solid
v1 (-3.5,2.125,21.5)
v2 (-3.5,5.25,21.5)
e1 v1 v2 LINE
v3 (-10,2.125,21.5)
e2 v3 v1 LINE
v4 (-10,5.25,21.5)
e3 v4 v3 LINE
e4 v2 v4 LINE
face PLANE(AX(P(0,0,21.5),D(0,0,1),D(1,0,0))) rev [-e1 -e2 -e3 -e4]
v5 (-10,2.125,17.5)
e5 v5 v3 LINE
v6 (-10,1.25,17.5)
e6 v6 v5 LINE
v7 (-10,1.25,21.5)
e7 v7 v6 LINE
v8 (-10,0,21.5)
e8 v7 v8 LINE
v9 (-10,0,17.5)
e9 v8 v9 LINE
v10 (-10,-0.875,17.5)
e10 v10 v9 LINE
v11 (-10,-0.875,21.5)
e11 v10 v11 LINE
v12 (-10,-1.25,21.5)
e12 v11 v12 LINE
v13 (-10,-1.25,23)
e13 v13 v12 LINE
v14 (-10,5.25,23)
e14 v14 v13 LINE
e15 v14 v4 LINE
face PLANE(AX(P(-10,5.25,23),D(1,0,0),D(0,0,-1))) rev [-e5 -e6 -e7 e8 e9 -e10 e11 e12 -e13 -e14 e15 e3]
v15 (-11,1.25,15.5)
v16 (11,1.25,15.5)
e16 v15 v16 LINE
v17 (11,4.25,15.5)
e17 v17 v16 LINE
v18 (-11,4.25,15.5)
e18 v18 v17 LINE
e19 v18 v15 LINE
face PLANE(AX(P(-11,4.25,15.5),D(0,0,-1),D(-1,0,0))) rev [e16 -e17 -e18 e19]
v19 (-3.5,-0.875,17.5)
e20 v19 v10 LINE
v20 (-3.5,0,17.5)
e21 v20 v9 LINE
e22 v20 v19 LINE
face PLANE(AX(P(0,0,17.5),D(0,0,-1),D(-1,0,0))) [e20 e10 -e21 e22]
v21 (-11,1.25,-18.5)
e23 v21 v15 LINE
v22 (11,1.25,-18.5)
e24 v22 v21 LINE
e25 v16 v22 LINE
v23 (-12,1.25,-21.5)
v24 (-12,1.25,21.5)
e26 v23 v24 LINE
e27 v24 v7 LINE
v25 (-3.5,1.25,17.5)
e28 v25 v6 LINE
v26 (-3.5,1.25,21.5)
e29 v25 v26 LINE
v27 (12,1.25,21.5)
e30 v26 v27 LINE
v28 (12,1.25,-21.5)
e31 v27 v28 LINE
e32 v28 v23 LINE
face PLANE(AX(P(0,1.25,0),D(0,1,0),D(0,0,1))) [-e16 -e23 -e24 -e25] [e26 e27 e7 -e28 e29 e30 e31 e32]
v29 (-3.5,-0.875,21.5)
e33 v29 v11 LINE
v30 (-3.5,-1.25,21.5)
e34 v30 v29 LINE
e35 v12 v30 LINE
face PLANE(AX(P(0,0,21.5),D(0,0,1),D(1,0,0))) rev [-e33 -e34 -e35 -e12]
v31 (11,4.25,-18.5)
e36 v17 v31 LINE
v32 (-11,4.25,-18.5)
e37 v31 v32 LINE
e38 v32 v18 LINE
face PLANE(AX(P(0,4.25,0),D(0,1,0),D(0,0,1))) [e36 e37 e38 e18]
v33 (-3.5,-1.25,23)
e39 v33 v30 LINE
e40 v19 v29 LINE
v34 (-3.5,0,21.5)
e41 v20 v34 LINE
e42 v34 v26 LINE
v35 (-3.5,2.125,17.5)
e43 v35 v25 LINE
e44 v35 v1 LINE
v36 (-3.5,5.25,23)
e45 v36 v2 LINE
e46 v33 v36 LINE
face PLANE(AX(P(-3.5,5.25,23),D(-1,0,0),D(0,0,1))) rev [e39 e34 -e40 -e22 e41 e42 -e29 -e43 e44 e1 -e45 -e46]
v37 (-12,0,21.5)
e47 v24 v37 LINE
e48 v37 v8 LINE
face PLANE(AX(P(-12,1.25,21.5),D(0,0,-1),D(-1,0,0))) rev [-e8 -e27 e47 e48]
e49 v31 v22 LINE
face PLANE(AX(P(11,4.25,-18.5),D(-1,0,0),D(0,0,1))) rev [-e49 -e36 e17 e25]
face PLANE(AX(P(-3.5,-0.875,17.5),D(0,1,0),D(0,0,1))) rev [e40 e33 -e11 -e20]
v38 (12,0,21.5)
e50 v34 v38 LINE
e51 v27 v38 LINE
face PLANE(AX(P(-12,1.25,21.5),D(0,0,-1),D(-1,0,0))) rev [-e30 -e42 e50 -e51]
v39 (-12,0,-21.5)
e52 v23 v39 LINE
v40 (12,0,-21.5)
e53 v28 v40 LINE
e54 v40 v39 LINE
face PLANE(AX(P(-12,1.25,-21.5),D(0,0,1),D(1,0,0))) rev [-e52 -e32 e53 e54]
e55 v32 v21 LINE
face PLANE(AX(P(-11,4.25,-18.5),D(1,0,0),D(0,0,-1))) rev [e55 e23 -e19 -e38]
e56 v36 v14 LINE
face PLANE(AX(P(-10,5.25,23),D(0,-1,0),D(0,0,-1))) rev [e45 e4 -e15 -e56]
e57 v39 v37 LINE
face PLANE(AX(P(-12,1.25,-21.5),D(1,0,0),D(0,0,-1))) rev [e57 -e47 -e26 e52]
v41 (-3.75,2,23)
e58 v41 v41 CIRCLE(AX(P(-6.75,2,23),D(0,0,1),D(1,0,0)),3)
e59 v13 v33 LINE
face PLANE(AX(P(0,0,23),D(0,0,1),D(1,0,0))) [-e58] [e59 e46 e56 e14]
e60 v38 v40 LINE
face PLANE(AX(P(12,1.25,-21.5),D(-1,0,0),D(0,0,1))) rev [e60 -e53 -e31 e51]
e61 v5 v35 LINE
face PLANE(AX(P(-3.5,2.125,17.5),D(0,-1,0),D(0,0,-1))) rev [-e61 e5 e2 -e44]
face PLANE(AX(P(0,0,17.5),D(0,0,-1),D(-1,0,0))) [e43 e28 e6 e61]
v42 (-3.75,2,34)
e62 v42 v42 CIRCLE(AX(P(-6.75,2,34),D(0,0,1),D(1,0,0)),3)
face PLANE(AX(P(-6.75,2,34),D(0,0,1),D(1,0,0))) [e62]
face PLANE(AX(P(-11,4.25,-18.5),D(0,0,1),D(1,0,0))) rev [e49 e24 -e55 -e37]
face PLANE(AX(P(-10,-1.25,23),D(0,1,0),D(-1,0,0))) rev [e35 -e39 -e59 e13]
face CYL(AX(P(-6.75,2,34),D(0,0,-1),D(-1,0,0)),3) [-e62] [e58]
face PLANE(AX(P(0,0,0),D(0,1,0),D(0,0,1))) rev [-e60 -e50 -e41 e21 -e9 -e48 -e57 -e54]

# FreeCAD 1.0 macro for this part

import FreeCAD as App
import Part
import Sketcher
from FreeCAD import Vector
Q = App.Units.Quantity


def add_polygon(sketch, points):
    """Adds a closed chain of lines whose ends are joined by coincident constraints."""
    first, n = sketch.GeometryCount, len(points)
    for a, b in zip(points, points[1:] + points[:1]):
        sketch.addGeometry(Part.LineSegment(App.Vector(*a, 0), App.Vector(*b, 0)), False)
    for i in range(n):
        sketch.addConstraint(Sketcher.Constraint("Coincident", first + i, 2, first + (i + 1) % n, 1))

doc = App.newDocument("Part")
body = doc.addObject("PartDesign::Body", "Body")

# Sketch on XZ plane
sketch1 = body.newObject("Sketcher::SketchObject", "Sketch")
sketch1.AttachmentSupport = (doc.getObject("XZ_Plane"), [""])
sketch1.MapMode = "FlatFace"
add_polygon(sketch1, [(-12, -21.5), (-12, 21.5), (12, 21.5), (12, -21.5)])  # lines 0-3
sketch1.addConstraint([
    Sketcher.Constraint("Vertical", 0),
    Sketcher.Constraint("Horizontal", 1),
    Sketcher.Constraint("Vertical", 2),
    Sketcher.Constraint("Horizontal", 3),
    Sketcher.Constraint("Symmetric", 0, 2, 2, 2, -1, 1),
    Sketcher.Constraint("DistanceX", 1, 1, 1, 2, Q("24 mm")),
    Sketcher.Constraint("DistanceY", 0, 1, 0, 2, Q("43 mm")),
])
pad1 = body.newObject("PartDesign::Pad", "Pad")
pad1.Profile = sketch1
pad1.Length = 1.25
pad1.Reversed = True

# Sketch on XZ plane
sketch2 = body.newObject("Sketcher::SketchObject", "Sketch001")
sketch2.AttachmentSupport = (doc.getObject("XZ_Plane"), [""])
sketch2.MapMode = "FlatFace"
sketch2.AttachmentOffset = App.Placement(Vector(0, 0, -1.25), App.Rotation())
add_polygon(sketch2, [(-11, -18.5), (-11, 15.5), (11, 15.5), (11, -18.5)])  # lines 0-3
sketch2.addConstraint([
    Sketcher.Constraint("Vertical", 0),
    Sketcher.Constraint("Horizontal", 1),
    Sketcher.Constraint("Vertical", 2),
    Sketcher.Constraint("Horizontal", 3),
    Sketcher.Constraint("DistanceX", 1, 1, 1, 2, Q("22 mm")),
    Sketcher.Constraint("DistanceY", 0, 1, 0, 2, Q("34 mm")),
    Sketcher.Constraint("DistanceX", 0, 2, -1, 1, Q("11 mm")),
    Sketcher.Constraint("DistanceY", -1, 1, 0, 2, Q("15.5 mm")),
])
pad2 = body.newObject("PartDesign::Pad", "Pad001")
pad2.Profile = sketch2
pad2.Length = 3
pad2.Reversed = True

# Sketch on XY plane
sketch3 = body.newObject("Sketcher::SketchObject", "Sketch002")
sketch3.AttachmentSupport = (doc.getObject("XY_Plane"), [""])
sketch3.MapMode = "FlatFace"
sketch3.AttachmentOffset = App.Placement(Vector(0, 0, 21.5), App.Rotation())
add_polygon(sketch3, [(-10, 5.25), (-10, -1.25), (-3.5, -1.25), (-3.5, 5.25)])  # lines 0-3
sketch3.addConstraint([
    Sketcher.Constraint("Vertical", 0),
    Sketcher.Constraint("Horizontal", 1),
    Sketcher.Constraint("Vertical", 2),
    Sketcher.Constraint("Horizontal", 3),
    Sketcher.Constraint("Equal", 3, 0),
    Sketcher.Constraint("DistanceX", 1, 1, 1, 2, Q("6.5 mm")),
    Sketcher.Constraint("DistanceX", 0, 2, -1, 1, Q("10 mm")),
    Sketcher.Constraint("DistanceY", 0, 2, -1, 1, Q("1.25 mm")),
])
pad3 = body.newObject("PartDesign::Pad", "Pad002")
pad3.Profile = sketch3
pad3.Length = 1.5

# Sketch on XY plane
sketch4 = body.newObject("Sketcher::SketchObject", "Sketch003")
sketch4.AttachmentSupport = (doc.getObject("XY_Plane"), [""])
sketch4.MapMode = "FlatFace"
sketch4.AttachmentOffset = App.Placement(Vector(0, 0, 23), App.Rotation())
sketch4.addGeometry(Part.Circle(Vector(-6.75, 2, 0), Vector(0, 0, 1), 3), False)
sketch4.addConstraint([
    Sketcher.Constraint("Diameter", 0, Q("6 mm")),
    Sketcher.Constraint("DistanceY", -1, 1, 0, 3, Q("2 mm")),
    Sketcher.Constraint("DistanceX", 0, 3, -1, 1, Q("6.75 mm")),
])
pad4 = body.newObject("PartDesign::Pad", "Pad003")
pad4.Profile = sketch4
pad4.Length = 11

# Sketch on XY plane
sketch5 = body.newObject("Sketcher::SketchObject", "Sketch004")
sketch5.AttachmentSupport = (doc.getObject("XY_Plane"), [""])
sketch5.MapMode = "FlatFace"
sketch5.AttachmentOffset = App.Placement(Vector(0, 0, 21.5), App.Rotation())
add_polygon(sketch5, [(-3.5, 2.125), (-3.5, -0.875), (-10, -0.875), (-10, 2.125)])  # lines 0-3
sketch5.addConstraint([
    Sketcher.Constraint("Vertical", 0),
    Sketcher.Constraint("Horizontal", 1),
    Sketcher.Constraint("Vertical", 2),
    Sketcher.Constraint("Horizontal", 3),
    Sketcher.Constraint("DistanceY", 0, 2, 0, 1, Q("3 mm")),
    Sketcher.Constraint("DistanceX", 1, 2, 1, 1, Q("6.5 mm")),
    Sketcher.Constraint("DistanceX", 1, 2, -1, 1, Q("10 mm")),
    Sketcher.Constraint("DistanceY", 0, 2, -1, 1, Q("0.875 mm")),
])
pad5 = body.newObject("PartDesign::Pad", "Pad004")
pad5.Profile = sketch5
pad5.Length = 4
pad5.Reversed = True

doc.recompute()
